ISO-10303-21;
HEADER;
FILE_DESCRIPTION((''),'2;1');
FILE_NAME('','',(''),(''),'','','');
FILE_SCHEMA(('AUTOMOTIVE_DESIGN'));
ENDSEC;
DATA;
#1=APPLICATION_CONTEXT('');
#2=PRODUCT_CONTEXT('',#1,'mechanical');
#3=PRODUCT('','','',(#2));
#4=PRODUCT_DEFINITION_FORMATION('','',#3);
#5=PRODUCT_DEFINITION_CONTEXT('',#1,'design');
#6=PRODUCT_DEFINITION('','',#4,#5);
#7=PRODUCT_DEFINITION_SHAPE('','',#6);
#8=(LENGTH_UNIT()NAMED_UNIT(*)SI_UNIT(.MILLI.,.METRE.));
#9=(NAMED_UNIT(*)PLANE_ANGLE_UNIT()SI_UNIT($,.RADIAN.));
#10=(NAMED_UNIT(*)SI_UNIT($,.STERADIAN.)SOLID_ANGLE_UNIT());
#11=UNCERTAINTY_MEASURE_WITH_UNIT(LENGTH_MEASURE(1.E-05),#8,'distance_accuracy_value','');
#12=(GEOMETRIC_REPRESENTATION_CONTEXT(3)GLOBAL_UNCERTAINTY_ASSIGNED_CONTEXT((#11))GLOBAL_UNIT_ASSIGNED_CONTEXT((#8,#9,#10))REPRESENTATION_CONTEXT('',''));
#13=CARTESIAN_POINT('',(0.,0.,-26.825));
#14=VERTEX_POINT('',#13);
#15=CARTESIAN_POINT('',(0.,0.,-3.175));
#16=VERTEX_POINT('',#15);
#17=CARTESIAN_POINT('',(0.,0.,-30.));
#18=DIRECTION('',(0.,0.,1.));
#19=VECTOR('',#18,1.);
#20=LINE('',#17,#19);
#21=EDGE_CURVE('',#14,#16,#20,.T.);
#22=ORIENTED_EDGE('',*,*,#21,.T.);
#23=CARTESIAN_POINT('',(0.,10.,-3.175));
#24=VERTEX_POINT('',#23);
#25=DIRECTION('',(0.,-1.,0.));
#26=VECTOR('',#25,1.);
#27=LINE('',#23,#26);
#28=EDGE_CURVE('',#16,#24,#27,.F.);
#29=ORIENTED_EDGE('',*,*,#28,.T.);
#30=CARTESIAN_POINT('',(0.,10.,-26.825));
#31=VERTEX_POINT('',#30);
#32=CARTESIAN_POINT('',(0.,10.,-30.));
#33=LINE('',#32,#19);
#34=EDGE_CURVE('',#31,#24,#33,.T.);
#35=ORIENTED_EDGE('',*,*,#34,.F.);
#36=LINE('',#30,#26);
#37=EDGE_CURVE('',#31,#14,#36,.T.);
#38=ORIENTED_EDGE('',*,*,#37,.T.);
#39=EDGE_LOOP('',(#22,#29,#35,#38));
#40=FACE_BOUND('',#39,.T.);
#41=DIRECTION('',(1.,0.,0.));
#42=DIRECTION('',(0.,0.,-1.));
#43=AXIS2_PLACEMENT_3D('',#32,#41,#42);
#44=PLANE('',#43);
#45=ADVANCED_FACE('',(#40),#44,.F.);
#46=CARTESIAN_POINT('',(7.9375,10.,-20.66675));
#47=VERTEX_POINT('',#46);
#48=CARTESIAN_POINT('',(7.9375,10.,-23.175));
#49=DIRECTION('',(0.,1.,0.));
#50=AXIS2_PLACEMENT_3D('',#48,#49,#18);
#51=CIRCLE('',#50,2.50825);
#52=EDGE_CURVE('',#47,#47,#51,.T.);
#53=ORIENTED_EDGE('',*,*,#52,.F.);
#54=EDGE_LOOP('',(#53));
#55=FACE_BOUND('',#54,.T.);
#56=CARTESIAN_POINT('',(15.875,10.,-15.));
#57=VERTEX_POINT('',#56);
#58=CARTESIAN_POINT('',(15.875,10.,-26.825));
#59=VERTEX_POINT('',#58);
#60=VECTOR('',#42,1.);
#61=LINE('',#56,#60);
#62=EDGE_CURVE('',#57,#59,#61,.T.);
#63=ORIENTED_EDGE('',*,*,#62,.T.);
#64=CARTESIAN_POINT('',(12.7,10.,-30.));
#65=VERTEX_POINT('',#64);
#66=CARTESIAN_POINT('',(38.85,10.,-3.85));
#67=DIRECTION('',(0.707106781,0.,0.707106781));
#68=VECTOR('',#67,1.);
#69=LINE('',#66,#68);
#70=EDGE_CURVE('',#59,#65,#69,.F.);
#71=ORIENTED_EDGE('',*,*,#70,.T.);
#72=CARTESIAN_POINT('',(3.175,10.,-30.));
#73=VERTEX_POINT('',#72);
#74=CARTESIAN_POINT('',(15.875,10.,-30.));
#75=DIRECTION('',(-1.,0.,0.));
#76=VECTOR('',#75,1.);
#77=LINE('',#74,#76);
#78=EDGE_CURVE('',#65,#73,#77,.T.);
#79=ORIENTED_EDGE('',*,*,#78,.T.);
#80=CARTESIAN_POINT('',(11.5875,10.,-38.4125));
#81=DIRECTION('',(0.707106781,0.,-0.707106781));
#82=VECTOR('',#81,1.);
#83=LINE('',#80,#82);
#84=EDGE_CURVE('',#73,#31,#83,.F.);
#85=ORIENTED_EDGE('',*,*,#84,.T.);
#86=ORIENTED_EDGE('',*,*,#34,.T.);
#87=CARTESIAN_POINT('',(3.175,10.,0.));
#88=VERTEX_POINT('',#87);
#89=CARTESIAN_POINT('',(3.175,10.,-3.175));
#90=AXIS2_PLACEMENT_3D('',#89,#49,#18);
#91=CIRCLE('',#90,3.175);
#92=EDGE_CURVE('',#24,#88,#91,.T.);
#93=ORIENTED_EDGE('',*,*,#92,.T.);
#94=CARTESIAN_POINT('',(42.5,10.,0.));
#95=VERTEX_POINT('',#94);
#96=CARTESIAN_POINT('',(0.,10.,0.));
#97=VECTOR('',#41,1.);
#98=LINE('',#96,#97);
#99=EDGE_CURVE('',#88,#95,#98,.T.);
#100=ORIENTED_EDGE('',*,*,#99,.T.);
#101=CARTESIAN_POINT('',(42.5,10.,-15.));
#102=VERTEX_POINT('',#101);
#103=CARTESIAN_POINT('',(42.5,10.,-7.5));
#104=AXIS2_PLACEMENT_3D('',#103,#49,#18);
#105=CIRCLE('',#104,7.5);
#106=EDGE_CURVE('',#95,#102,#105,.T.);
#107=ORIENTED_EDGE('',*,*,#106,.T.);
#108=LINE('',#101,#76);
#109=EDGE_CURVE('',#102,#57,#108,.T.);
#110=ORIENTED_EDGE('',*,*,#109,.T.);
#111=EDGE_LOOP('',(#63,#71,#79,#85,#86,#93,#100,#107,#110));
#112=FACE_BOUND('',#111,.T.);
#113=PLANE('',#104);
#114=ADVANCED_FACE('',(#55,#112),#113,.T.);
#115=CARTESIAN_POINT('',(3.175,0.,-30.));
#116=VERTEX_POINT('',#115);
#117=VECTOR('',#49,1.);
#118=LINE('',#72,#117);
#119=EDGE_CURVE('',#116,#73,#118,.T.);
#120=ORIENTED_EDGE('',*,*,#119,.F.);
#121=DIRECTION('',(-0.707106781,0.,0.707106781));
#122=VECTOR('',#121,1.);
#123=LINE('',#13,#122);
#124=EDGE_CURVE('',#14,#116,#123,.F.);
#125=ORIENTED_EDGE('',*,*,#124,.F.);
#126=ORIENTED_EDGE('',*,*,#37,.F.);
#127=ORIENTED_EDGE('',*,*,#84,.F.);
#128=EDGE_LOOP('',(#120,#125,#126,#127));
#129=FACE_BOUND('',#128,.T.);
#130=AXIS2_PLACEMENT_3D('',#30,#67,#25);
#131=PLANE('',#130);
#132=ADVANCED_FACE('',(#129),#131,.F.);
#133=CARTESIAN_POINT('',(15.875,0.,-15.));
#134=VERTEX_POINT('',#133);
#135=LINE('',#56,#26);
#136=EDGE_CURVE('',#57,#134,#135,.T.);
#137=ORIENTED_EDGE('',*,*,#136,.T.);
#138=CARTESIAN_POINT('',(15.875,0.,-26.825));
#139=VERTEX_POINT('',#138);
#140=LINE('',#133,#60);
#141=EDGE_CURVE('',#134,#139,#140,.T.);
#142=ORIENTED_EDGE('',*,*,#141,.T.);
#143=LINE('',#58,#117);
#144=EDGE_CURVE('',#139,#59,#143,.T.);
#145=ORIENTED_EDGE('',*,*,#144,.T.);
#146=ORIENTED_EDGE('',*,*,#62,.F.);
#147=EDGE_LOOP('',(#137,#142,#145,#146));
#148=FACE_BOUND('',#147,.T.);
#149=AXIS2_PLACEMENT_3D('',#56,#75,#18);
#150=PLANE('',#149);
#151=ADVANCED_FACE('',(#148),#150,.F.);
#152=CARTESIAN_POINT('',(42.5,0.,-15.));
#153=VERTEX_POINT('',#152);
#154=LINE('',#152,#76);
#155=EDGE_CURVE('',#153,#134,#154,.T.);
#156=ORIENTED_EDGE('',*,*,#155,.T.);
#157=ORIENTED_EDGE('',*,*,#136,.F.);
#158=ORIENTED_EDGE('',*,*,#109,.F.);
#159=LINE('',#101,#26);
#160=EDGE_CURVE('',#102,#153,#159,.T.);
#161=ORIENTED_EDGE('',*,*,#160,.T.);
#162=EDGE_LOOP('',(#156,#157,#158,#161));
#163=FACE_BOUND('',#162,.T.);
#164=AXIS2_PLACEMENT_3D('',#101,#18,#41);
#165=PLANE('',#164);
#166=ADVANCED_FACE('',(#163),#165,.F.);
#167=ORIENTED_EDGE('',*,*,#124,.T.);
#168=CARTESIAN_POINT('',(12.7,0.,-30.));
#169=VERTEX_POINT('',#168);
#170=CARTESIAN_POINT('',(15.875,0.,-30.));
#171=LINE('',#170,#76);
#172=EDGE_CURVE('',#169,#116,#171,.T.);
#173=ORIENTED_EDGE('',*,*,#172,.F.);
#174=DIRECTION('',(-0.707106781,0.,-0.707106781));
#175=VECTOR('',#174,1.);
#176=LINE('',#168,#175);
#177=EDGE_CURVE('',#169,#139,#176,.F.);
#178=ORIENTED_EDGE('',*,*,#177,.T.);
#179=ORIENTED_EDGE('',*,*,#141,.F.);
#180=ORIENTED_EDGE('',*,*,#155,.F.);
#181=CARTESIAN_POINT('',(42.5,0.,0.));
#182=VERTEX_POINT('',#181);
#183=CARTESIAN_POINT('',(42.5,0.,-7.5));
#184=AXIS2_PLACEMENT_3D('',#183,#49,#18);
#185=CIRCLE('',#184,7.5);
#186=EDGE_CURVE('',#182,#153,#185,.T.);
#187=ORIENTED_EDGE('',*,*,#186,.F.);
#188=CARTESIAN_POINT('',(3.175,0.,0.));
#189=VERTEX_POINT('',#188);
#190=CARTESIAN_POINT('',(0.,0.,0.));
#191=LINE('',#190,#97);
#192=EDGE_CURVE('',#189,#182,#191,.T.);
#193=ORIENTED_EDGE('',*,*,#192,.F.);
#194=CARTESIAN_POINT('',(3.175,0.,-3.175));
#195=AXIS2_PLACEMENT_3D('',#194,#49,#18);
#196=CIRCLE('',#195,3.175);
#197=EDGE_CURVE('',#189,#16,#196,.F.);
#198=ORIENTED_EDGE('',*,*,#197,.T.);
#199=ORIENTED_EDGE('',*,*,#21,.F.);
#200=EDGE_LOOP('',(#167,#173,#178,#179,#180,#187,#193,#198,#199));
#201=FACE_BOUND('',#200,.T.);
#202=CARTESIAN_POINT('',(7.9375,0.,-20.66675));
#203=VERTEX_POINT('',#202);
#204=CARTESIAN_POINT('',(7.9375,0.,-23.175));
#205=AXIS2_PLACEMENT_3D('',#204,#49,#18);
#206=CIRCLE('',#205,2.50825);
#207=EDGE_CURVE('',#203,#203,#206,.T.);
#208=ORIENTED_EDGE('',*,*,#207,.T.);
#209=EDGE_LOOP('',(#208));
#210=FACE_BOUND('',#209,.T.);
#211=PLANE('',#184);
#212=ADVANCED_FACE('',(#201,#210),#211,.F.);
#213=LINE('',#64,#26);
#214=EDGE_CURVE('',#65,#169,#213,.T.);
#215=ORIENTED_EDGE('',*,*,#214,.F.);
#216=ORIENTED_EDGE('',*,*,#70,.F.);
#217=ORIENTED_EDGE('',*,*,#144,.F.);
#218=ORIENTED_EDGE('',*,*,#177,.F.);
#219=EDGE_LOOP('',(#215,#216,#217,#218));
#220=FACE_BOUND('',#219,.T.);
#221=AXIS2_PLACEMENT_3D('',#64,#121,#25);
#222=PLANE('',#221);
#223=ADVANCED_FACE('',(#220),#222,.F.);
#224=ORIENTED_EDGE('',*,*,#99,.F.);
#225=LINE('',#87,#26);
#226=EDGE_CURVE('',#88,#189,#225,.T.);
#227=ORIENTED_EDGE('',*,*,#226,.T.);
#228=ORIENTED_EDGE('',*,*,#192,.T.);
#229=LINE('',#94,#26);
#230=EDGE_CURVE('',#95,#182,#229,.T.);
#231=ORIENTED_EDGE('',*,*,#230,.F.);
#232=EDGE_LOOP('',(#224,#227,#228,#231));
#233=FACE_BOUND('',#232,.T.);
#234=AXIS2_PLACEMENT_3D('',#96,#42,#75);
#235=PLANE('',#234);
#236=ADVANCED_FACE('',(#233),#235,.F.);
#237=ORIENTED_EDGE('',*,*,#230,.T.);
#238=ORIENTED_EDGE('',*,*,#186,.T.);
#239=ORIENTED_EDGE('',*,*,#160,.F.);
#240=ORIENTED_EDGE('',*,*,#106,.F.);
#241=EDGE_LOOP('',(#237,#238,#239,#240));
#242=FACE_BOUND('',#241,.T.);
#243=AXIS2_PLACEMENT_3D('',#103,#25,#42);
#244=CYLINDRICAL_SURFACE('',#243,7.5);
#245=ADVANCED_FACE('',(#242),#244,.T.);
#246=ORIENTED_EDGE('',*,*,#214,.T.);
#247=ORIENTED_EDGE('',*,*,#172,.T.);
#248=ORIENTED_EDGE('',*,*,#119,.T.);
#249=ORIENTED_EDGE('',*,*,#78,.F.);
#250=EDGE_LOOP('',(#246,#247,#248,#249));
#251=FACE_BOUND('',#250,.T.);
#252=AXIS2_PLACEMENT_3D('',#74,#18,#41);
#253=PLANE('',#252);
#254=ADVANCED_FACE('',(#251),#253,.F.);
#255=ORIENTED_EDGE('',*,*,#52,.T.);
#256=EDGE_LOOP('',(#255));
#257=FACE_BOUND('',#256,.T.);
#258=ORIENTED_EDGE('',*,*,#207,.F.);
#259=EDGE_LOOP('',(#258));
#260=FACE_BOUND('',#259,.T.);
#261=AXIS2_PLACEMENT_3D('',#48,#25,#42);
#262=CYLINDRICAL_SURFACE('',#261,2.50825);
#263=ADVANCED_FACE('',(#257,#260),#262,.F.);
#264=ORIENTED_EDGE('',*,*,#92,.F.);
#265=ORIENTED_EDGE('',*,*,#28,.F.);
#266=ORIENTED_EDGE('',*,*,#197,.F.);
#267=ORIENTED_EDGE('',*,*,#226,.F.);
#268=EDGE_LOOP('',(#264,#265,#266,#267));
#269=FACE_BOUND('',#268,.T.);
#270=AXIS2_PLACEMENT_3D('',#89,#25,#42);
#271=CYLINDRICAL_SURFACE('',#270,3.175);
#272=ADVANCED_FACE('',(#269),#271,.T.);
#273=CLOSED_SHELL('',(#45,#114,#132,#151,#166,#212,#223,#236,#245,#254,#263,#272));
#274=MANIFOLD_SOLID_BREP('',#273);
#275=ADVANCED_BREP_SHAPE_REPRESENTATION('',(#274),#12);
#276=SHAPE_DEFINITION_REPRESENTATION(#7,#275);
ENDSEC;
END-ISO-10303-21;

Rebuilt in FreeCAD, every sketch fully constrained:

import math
import FreeCAD as App
import Part
import Sketcher
from FreeCAD import Vector


def edges_at(feature, points):
    """Names of the edges that pass closest to the given points."""
    edges = feature.Shape.Edges
    near = lambda p: min(range(len(edges)), key=lambda i: edges[i].distToShape(Part.Vertex(*p))[0])
    return sorted({f"Edge{near(p) + 1}" for p in points})

doc = App.newDocument("Part")
body = doc.addObject("PartDesign::Body", "Body")

# Sketch on XZ plane
sketch1 = body.newObject("Sketcher::SketchObject", "Sketch")
sketch1.AttachmentSupport = (doc.getObject("XZ_Plane"), [""])
sketch1.MapMode = "FlatFace"
sketch1.addGeometry([
    Part.LineSegment(Vector(0, -30, 0), Vector(0, 0, 0)),  # 0
    Part.LineSegment(Vector(0, 0, 0), Vector(42.5, 0, 0)),  # 1
    Part.ArcOfCircle(Part.Circle(Vector(42.5, -7.5, 0), Vector(0, 0, 1), 7.5), math.radians(-90), math.radians(90)),  # 2
    Part.LineSegment(Vector(42.5, -15, 0), Vector(15.9, -15, 0)),  # 3
    Part.LineSegment(Vector(15.9, -15, 0), Vector(15.9, -30, 0)),  # 4
    Part.LineSegment(Vector(15.9, -30, 0), Vector(0, -30, 0)),  # 5
    Part.Circle(Vector(7.9, -23.2, 0), Vector(0, 0, 1), 2.5),  # 6
], False)
sketch1.addConstraint([
    Sketcher.Constraint("Coincident", 0, 2, 1, 1),
    Sketcher.Constraint("Tangent", 1, 2, 2, 2),
    Sketcher.Constraint("Tangent", 2, 1, 3, 1),
    Sketcher.Constraint("Coincident", 3, 2, 4, 1),
    Sketcher.Constraint("Coincident", 4, 2, 5, 1),
    Sketcher.Constraint("Coincident", 5, 2, 0, 1),
    Sketcher.Constraint("Vertical", 0),
    Sketcher.Constraint("Horizontal", 1),
    Sketcher.Constraint("Horizontal", 3),
    Sketcher.Constraint("Vertical", 4),
    Sketcher.Constraint("Horizontal", 5),
    Sketcher.Constraint("Coincident", 0, 2, -1, 1),
    Sketcher.Constraint("Radius", 2, 7.5),
    Sketcher.Constraint("DistanceY", 0, 1, 0, 2, 30.0),
    Sketcher.Constraint("DistanceX", 1, 1, 1, 2, 42.5),
    Sketcher.Constraint("Diameter", 6, 5.0165),
    Sketcher.Constraint("DistanceX", 3, 2, 3, 1, 26.625),
    Sketcher.Constraint("DistanceY", 6, 3, -1, 1, 23.175),
    Sketcher.Constraint("DistanceX", -1, 1, 6, 3, 7.9375),
])
pad1 = body.newObject("PartDesign::Pad", "Pad")
pad1.Profile = sketch1
pad1.Length = 10
pad1.Reversed = True
doc.recompute()

fillet = body.newObject("PartDesign::Fillet", "Fillet")
fillet.Base = (pad1, edges_at(pad1, [(0, 5, 0)]))
fillet.Radius = 3.175
doc.recompute()

chamfer = body.newObject("PartDesign::Chamfer", "Chamfer")
chamfer.Base = (fillet, edges_at(fillet, [(15.875, 5, -30), (0, 5, -30)]))
chamfer.Size = 3.175

doc.recompute()
